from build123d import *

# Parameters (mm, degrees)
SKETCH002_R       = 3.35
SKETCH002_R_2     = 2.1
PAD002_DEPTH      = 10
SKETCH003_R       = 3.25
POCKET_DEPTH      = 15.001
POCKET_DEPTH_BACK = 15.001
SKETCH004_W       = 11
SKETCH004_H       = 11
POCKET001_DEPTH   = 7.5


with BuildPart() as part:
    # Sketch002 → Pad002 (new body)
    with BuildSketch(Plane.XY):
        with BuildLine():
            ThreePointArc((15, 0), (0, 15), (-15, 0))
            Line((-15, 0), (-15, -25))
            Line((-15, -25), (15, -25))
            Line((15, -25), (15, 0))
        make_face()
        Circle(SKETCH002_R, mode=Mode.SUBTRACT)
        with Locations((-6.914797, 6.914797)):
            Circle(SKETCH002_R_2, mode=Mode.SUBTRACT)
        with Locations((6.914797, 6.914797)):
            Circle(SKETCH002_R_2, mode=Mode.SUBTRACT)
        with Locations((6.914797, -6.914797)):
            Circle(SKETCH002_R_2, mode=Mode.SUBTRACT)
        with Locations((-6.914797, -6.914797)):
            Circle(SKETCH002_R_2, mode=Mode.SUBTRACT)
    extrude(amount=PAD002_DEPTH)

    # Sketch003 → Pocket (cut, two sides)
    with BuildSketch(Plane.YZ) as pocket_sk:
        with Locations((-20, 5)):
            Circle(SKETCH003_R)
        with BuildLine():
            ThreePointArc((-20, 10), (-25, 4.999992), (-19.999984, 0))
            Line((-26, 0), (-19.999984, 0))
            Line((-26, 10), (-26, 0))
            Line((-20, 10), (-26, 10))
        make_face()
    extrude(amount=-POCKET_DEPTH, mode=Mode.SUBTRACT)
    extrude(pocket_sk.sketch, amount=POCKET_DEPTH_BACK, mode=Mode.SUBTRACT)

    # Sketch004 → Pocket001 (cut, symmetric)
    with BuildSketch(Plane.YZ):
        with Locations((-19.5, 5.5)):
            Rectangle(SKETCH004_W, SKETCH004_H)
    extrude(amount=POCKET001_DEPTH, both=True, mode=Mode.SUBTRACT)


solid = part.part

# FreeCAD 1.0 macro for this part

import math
import FreeCAD as App
import Part
import Sketcher

V = App.Vector
Q = App.Units.Quantity

doc = App.newDocument("Part")
body = doc.addObject("PartDesign::Body", "Body")

sketch1 = body.newObject("Sketcher::SketchObject", "Sketch")
sketch1.AttachmentSupport = (doc.getObject("XY_Plane"), [""])
sketch1.MapMode = "FlatFace"
sketch1.addGeometry(Part.ArcOfCircle(Part.Circle(V(0, 0, 0), V(0, 0, 1), 15), math.radians(0), math.radians(180)), False)
sketch1.addGeometry(Part.LineSegment(V(-15, 0, 0), V(-15, -25, 0)), False)
sketch1.addGeometry(Part.LineSegment(V(-15, -25, 0), V(15, -25, 0)), False)
sketch1.addGeometry(Part.LineSegment(V(15, -25, 0), V(15, 0, 0)), False)
sketch1.addGeometry(Part.Circle(V(-6.9, -6.9, 0), V(0, 0, 1), 2.1), False)
sketch1.addGeometry(Part.Circle(V(6.9, -6.9, 0), V(0, 0, 1), 2.1), False)
sketch1.addGeometry(Part.Circle(V(-6.9, 6.9, 0), V(0, 0, 1), 2.1), False)
sketch1.addGeometry(Part.Circle(V(0, 0, 0), V(0, 0, 1), 3.4), False)
sketch1.addGeometry(Part.Circle(V(6.9, 6.9, 0), V(0, 0, 1), 2.1), False)
sketch1.addConstraint(Sketcher.Constraint("Tangent", 0, 2, 1, 1))
sketch1.addConstraint(Sketcher.Constraint("Coincident", 1, 2, 2, 1))
sketch1.addConstraint(Sketcher.Constraint("Coincident", 2, 2, 3, 1))
sketch1.addConstraint(Sketcher.Constraint("Tangent", 3, 2, 0, 1))
sketch1.addConstraint(Sketcher.Constraint("Vertical", 1))
sketch1.addConstraint(Sketcher.Constraint("Horizontal", 2))
sketch1.addConstraint(Sketcher.Constraint("Vertical", 3))
sketch1.addConstraint(Sketcher.Constraint("Coincident", 0, 3, -1, 1))
sketch1.addConstraint(Sketcher.Constraint("Coincident", 7, 3, -1, 1))
sketch1.addConstraint(Sketcher.Constraint("Equal", 4, 5))
sketch1.addConstraint(Sketcher.Constraint("Equal", 5, 6))
sketch1.addConstraint(Sketcher.Constraint("Equal", 6, 8))
sketch1.addConstraint(Sketcher.Constraint("Symmetric", 5, 3, 6, 3, -1, 1))
sketch1.addConstraint(Sketcher.Constraint("Symmetric", 4, 3, 8, 3, -1, 1))
sketch1.addConstraint(Sketcher.Constraint("Symmetric", 4, 3, 5, 3, -2))
sketch1.addConstraint(Sketcher.Constraint("Radius", 0, Q("15 mm")))
sketch1.addConstraint(Sketcher.Constraint("Diameter", 4, Q("4.2 mm")))
sketch1.addConstraint(Sketcher.Constraint("Diameter", 7, Q("6.7 mm")))
sketch1.addConstraint(Sketcher.Constraint("DistanceY", 1, 2, 1, 1, Q("25 mm")))
sketch1.addConstraint(Sketcher.Constraint("DistanceX", 4, 3, -1, 1, Q("6.914797 mm")))
sketch1.addConstraint(Sketcher.Constraint("DistanceY", 4, 3, -1, 1, Q("6.914797 mm")))
pad1 = body.newObject("PartDesign::Pad", "Pad")
pad1.Profile = sketch1
pad1.Length = 10

sketch2 = body.newObject("Sketcher::SketchObject", "Sketch001")
sketch2.AttachmentSupport = (doc.getObject("YZ_Plane"), [""])
sketch2.MapMode = "FlatFace"
sketch2.addGeometry(Part.Circle(V(-20, 5, 0), V(0, 0, 1), 3.2), False)
sketch2.addGeometry(Part.ArcOfCircle(Part.Circle(V(-20, 5, 0), V(0, 0, 1), 5), math.radians(90), math.radians(270)), False)
sketch2.addGeometry(Part.LineSegment(V(-20, 10, 0), V(-26, 10, 0)), False)
sketch2.addGeometry(Part.LineSegment(V(-26, 10, 0), V(-26, 0, 0)), False)
sketch2.addGeometry(Part.LineSegment(V(-26, 0, 0), V(-20, 0, 0)), False)
sketch2.addConstraint(Sketcher.Constraint("Tangent", 1, 1, 2, 1))
sketch2.addConstraint(Sketcher.Constraint("Coincident", 2, 2, 3, 1))
sketch2.addConstraint(Sketcher.Constraint("Coincident", 3, 2, 4, 1))
sketch2.addConstraint(Sketcher.Constraint("Coincident", 4, 2, 1, 2))
sketch2.addConstraint(Sketcher.Constraint("Horizontal", 2))
sketch2.addConstraint(Sketcher.Constraint("Vertical", 3))
sketch2.addConstraint(Sketcher.Constraint("Horizontal", 4))
sketch2.addConstraint(Sketcher.Constraint("Coincident", 1, 3, 0, 3))
sketch2.addConstraint(Sketcher.Constraint("PointOnObject", 3, 2, -1))
sketch2.addConstraint(Sketcher.Constraint("Radius", 1, Q("5 mm")))
sketch2.addConstraint(Sketcher.Constraint("Diameter", 0, Q("6.5 mm")))
sketch2.addConstraint(Sketcher.Constraint("DistanceX", 2, 2, 2, 1, Q("6 mm")))
sketch2.addConstraint(Sketcher.Constraint("DistanceX", 0, 3, -1, 1, Q("20 mm")))
sketch2.addConstraint(Sketcher.Constraint("DistanceX", 4, 1, 4, 2, Q("6.000016 mm")))
pocket1 = body.newObject("PartDesign::Pocket", "Pocket")
pocket1.Profile = sketch2
pocket1.Type = "ThroughAll"
pocket1.Midplane = True

sketch3 = body.newObject("Sketcher::SketchObject", "Sketch002")
sketch3.AttachmentSupport = (doc.getObject("YZ_Plane"), [""])
sketch3.MapMode = "FlatFace"
sketch3.addGeometry(Part.LineSegment(V(-25, 11, 0), V(-25, 0, 0)), False)
sketch3.addGeometry(Part.LineSegment(V(-25, 0, 0), V(-14, 0, 0)), False)
sketch3.addGeometry(Part.LineSegment(V(-14, 0, 0), V(-14, 11, 0)), False)
sketch3.addGeometry(Part.LineSegment(V(-14, 11, 0), V(-25, 11, 0)), False)
sketch3.addConstraint(Sketcher.Constraint("Coincident", 0, 2, 1, 1))
sketch3.addConstraint(Sketcher.Constraint("Coincident", 1, 2, 2, 1))
sketch3.addConstraint(Sketcher.Constraint("Coincident", 2, 2, 3, 1))
sketch3.addConstraint(Sketcher.Constraint("Coincident", 3, 2, 0, 1))
sketch3.addConstraint(Sketcher.Constraint("Vertical", 0))
sketch3.addConstraint(Sketcher.Constraint("Horizontal", 1))
sketch3.addConstraint(Sketcher.Constraint("Vertical", 2))
sketch3.addConstraint(Sketcher.Constraint("Horizontal", 3))
sketch3.addConstraint(Sketcher.Constraint("PointOnObject", 0, 2, -1))
sketch3.addConstraint(Sketcher.Constraint("Equal", 3, 0))
sketch3.addConstraint(Sketcher.Constraint("DistanceX", 1, 1, 1, 2, Q("11 mm")))
sketch3.addConstraint(Sketcher.Constraint("DistanceX", 0, 2, -1, 1, Q("25 mm")))
pocket2 = body.newObject("PartDesign::Pocket", "Pocket001")
pocket2.Profile = sketch3
pocket2.Length = 15
pocket2.Midplane = True

doc.recompute()
